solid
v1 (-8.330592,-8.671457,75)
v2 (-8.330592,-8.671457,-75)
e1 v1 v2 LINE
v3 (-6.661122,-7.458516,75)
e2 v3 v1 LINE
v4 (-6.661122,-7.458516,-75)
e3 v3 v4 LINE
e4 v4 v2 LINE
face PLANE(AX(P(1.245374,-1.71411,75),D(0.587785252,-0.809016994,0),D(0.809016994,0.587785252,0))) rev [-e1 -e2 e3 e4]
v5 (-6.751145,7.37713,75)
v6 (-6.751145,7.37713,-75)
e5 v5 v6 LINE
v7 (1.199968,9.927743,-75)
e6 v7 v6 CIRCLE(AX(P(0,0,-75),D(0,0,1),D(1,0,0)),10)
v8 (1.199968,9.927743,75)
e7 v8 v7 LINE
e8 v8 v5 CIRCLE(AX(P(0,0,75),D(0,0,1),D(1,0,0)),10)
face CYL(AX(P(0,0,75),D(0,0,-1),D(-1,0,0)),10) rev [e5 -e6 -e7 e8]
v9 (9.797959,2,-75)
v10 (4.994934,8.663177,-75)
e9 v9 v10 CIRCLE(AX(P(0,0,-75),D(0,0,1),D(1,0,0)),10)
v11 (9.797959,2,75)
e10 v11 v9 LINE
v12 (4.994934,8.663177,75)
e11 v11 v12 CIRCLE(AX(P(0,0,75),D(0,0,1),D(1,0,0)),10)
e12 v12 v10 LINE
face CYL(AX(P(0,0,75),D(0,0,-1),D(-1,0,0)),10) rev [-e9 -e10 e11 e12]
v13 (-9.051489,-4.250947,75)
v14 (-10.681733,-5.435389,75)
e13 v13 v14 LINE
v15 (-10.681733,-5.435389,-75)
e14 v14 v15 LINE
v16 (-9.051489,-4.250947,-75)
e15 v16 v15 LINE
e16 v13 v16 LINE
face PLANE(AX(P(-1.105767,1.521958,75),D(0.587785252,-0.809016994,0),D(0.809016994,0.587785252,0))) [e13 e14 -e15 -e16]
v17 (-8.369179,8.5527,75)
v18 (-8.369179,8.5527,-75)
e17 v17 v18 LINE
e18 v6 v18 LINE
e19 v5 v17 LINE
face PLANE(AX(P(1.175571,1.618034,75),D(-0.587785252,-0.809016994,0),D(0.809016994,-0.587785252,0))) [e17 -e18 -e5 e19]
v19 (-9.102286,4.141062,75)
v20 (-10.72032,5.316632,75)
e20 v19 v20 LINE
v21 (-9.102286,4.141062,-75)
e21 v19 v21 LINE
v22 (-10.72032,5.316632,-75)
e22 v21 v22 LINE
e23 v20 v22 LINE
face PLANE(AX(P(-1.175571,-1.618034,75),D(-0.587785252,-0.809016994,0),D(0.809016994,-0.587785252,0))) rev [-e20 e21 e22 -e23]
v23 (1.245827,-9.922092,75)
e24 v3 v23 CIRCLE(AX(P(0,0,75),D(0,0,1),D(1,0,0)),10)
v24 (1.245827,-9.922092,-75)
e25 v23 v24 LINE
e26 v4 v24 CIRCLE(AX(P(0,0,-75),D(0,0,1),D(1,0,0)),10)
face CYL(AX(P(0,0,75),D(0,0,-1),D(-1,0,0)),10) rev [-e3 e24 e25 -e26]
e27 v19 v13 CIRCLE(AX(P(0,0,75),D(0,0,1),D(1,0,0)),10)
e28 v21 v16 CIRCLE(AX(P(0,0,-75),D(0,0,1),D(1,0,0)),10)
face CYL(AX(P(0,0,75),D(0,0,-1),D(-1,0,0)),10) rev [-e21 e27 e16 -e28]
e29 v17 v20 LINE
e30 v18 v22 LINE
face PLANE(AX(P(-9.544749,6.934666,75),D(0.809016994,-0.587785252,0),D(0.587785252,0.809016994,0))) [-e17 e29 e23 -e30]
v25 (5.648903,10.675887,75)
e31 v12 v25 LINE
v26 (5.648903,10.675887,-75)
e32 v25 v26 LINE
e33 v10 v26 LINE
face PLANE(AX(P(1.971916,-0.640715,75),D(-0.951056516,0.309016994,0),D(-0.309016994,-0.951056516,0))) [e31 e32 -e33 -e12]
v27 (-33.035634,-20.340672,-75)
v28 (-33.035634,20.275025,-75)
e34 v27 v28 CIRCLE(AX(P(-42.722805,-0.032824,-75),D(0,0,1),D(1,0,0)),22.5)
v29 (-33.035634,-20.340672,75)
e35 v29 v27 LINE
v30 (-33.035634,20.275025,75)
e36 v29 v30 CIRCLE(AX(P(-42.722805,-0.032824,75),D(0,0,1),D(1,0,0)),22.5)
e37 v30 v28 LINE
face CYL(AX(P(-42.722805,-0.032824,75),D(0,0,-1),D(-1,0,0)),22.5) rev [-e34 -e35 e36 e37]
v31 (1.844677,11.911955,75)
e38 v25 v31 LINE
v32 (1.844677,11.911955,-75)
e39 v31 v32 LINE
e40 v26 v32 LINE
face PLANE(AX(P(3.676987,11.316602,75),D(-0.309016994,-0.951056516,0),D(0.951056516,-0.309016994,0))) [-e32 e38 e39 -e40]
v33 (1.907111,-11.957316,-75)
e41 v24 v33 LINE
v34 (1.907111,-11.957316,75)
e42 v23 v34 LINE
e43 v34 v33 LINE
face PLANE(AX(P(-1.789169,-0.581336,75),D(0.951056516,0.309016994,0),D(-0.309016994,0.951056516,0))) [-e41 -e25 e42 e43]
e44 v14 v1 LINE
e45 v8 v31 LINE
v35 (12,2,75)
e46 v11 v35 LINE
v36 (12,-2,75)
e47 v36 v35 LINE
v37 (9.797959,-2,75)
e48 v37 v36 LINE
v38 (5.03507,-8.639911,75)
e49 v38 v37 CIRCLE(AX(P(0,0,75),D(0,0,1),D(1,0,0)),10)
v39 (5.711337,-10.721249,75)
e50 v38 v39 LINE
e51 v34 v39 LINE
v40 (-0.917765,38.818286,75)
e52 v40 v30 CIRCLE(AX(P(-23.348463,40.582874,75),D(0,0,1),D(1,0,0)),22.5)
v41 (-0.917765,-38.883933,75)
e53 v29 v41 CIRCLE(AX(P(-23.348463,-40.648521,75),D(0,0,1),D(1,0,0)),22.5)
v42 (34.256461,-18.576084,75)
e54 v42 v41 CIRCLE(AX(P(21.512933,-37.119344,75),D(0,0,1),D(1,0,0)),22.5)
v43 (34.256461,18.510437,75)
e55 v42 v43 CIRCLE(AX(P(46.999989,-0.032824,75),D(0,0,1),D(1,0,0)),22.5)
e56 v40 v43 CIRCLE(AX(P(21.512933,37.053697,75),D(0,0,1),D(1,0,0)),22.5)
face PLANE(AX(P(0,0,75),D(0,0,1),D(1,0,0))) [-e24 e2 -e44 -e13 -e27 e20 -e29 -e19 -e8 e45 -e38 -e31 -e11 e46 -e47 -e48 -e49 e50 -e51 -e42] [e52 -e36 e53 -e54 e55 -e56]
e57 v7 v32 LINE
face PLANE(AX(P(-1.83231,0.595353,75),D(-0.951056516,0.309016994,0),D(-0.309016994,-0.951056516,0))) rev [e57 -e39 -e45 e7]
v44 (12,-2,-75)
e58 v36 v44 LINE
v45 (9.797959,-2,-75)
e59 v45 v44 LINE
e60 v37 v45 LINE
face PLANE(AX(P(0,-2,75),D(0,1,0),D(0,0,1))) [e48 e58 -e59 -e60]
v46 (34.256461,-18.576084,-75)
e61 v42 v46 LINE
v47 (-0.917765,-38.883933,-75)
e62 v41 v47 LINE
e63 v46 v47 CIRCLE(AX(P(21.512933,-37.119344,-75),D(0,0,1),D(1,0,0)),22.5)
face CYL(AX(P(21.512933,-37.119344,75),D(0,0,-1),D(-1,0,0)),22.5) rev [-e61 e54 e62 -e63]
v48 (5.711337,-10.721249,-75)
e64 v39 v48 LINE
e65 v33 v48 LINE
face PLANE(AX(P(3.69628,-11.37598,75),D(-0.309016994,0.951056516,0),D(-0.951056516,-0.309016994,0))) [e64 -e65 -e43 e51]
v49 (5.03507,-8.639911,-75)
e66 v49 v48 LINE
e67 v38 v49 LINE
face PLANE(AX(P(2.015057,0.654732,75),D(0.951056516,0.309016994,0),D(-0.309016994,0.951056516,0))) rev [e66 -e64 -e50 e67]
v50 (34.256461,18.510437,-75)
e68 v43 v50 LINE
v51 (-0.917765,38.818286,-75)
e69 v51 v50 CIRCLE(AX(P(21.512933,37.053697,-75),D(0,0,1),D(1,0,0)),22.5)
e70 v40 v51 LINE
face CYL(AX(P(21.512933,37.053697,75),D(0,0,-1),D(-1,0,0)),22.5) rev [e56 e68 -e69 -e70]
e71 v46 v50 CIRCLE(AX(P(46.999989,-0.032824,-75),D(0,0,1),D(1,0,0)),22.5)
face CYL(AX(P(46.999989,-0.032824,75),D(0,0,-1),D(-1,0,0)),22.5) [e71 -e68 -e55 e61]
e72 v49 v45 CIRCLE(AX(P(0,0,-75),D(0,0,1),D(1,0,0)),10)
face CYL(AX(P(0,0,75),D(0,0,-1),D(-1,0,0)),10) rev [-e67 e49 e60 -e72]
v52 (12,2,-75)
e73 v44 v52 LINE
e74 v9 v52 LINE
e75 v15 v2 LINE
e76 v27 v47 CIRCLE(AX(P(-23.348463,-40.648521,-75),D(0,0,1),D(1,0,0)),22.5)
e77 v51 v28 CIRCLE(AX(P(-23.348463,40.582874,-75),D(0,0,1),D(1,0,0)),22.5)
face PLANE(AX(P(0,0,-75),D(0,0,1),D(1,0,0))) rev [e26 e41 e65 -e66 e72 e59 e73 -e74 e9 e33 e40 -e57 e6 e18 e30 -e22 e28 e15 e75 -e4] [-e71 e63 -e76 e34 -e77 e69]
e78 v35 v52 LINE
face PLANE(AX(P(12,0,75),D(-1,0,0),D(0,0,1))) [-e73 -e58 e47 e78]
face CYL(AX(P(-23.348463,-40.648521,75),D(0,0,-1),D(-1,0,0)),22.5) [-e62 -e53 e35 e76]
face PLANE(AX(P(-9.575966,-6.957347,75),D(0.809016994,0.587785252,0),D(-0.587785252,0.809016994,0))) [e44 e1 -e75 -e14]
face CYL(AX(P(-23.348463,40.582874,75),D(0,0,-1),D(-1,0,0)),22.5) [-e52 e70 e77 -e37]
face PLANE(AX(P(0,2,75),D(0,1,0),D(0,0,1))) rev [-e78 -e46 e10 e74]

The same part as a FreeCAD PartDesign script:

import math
import FreeCAD as App
import Part
import Sketcher
from FreeCAD import Vector
Q = App.Units.Quantity

doc = App.newDocument("Part")
body = doc.addObject("PartDesign::Body", "Body")

# Sketch on XY plane
sketch1 = doc.addObject("Sketcher::SketchObject", "Sketch")
body.addObject(sketch1)
sketch1.AttachmentSupport = (doc.XY_Plane, [""])
sketch1.MapMode = "FlatFace"
sketch1.addGeometry([
    Part.ArcOfCircle(Part.Circle(Vector(21.5, -37.1, 0), Vector(0, 0, 1), 22.5), math.radians(56), math.radians(184)),  # 0
    Part.ArcOfCircle(Part.Circle(Vector(47, 0, 0), Vector(0, 0, 1), 22.5), math.radians(-124), math.radians(124)),  # 1
    Part.ArcOfCircle(Part.Circle(Vector(21.5, 37.1, 0), Vector(0, 0, 1), 22.5), math.radians(176), math.radians(304)),  # 2
    Part.ArcOfCircle(Part.Circle(Vector(-23.3, 40.6, 0), Vector(0, 0, 1), 22.5), math.radians(-4), math.radians(244)),  # 3
    Part.ArcOfCircle(Part.Circle(Vector(-42.7, 0, 0), Vector(0, 0, 1), 22.5), math.radians(-64), math.radians(64)),  # 4
    Part.ArcOfCircle(Part.Circle(Vector(-23.3, -40.6, 0), Vector(0, 0, 1), 22.5), math.radians(116), math.radians(364)),  # 5
    Part.LineSegment(Vector(5.7, -10.7, 0), Vector(1.9, -12, 0)),  # 6
    Part.LineSegment(Vector(1.9, -12, 0), Vector(1.2, -9.9, 0)),  # 7
    Part.ArcOfCircle(Part.Circle(Vector(0, 0, 0), Vector(0, 0, 1), 10), math.radians(-132), math.radians(-83)),  # 8
    Part.LineSegment(Vector(-6.7, -7.5, 0), Vector(-8.3, -8.7, 0)),  # 9
    Part.LineSegment(Vector(-8.3, -8.7, 0), Vector(-10.7, -5.4, 0)),  # 10
    Part.LineSegment(Vector(-10.7, -5.4, 0), Vector(-9.1, -4.3, 0)),  # 11
    Part.ArcOfCircle(Part.Circle(Vector(0, 0, 0), Vector(0, 0, 1), 10), math.radians(156), math.radians(205)),  # 12
    Part.LineSegment(Vector(-9.1, 4.1, 0), Vector(-10.7, 5.3, 0)),  # 13
    Part.LineSegment(Vector(-10.7, 5.3, 0), Vector(-8.4, 8.6, 0)),  # 14
    Part.LineSegment(Vector(-8.4, 8.6, 0), Vector(-6.8, 7.4, 0)),  # 15
    Part.ArcOfCircle(Part.Circle(Vector(0, 0, 0), Vector(0, 0, 1), 10), math.radians(83), math.radians(132)),  # 16
    Part.LineSegment(Vector(1.2, 9.9, 0), Vector(1.8, 11.9, 0)),  # 17
    Part.LineSegment(Vector(1.8, 11.9, 0), Vector(5.6, 10.7, 0)),  # 18
    Part.LineSegment(Vector(5.6, 10.7, 0), Vector(5, 8.7, 0)),  # 19
    Part.ArcOfCircle(Part.Circle(Vector(0, 0, 0), Vector(0, 0, 1), 10), math.radians(12), math.radians(60)),  # 20
    Part.LineSegment(Vector(9.8, 2, 0), Vector(12, 2, 0)),  # 21
    Part.LineSegment(Vector(12, 2, 0), Vector(12, -2, 0)),  # 22
    Part.LineSegment(Vector(12, -2, 0), Vector(9.8, -2, 0)),  # 23
    Part.ArcOfCircle(Part.Circle(Vector(0, 0, 0), Vector(0, 0, 1), 10), math.radians(-60), math.radians(-12)),  # 24
    Part.LineSegment(Vector(5, -8.6, 0), Vector(5.7, -10.7, 0)),  # 25
], False)
sketch1.addConstraint([
    Sketcher.Constraint("Tangent", 0, 1, 1, 1),
    Sketcher.Constraint("Tangent", 1, 2, 2, 2),
    Sketcher.Constraint("Tangent", 2, 1, 3, 1),
    Sketcher.Constraint("Tangent", 3, 2, 4, 2),
    Sketcher.Constraint("Tangent", 4, 1, 5, 1),
    Sketcher.Constraint("Tangent", 5, 2, 0, 2),
    Sketcher.Constraint("Coincident", 6, 2, 7, 1),
    Sketcher.Constraint("Coincident", 7, 2, 8, 2),
    Sketcher.Constraint("Coincident", 8, 1, 9, 1),
    Sketcher.Constraint("Coincident", 9, 2, 10, 1),
    Sketcher.Constraint("Coincident", 10, 2, 11, 1),
    Sketcher.Constraint("Coincident", 11, 2, 12, 2),
    Sketcher.Constraint("Coincident", 12, 1, 13, 1),
    Sketcher.Constraint("Coincident", 13, 2, 14, 1),
    Sketcher.Constraint("Coincident", 14, 2, 15, 1),
    Sketcher.Constraint("Coincident", 15, 2, 16, 2),
    Sketcher.Constraint("Coincident", 16, 1, 17, 1),
    Sketcher.Constraint("Coincident", 17, 2, 18, 1),
    Sketcher.Constraint("Coincident", 18, 2, 19, 1),
    Sketcher.Constraint("Coincident", 19, 2, 20, 2),
    Sketcher.Constraint("Coincident", 20, 1, 21, 1),
    Sketcher.Constraint("Coincident", 21, 2, 22, 1),
    Sketcher.Constraint("Coincident", 22, 2, 23, 1),
    Sketcher.Constraint("Coincident", 23, 2, 24, 2),
    Sketcher.Constraint("Coincident", 24, 1, 25, 1),
    Sketcher.Constraint("Coincident", 25, 2, 6, 1),
    Sketcher.Constraint("Horizontal", 21),
    Sketcher.Constraint("Vertical", 22),
    Sketcher.Constraint("Horizontal", 23),
    Sketcher.Constraint("Coincident", 8, 3, -1, 1),
    Sketcher.Constraint("Coincident", 12, 3, -1, 1),
    Sketcher.Constraint("Coincident", 16, 3, -1, 1),
    Sketcher.Constraint("Coincident", 20, 3, -1, 1),
    Sketcher.Constraint("Coincident", 24, 3, -1, 1),
    Sketcher.Constraint("Equal", 0, 1),
    Sketcher.Constraint("Equal", 1, 2),
    Sketcher.Constraint("Equal", 2, 3),
    Sketcher.Constraint("Equal", 3, 4),
    Sketcher.Constraint("Equal", 4, 5),
    Sketcher.Constraint("Equal", 8, 12),
    Sketcher.Constraint("Equal", 12, 16),
    Sketcher.Constraint("Equal", 16, 20),
    Sketcher.Constraint("Equal", 20, 24),
    Sketcher.Constraint("Perpendicular", 6, 7),
    Sketcher.Constraint("Perpendicular", 9, 10),
    Sketcher.Constraint("Perpendicular", 10, 11),
    Sketcher.Constraint("Perpendicular", 13, 14),
    Sketcher.Constraint("Perpendicular", 14, 15),
    Sketcher.Constraint("Perpendicular", 17, 18),
    Sketcher.Constraint("Perpendicular", 18, 19),
    Sketcher.Constraint("Parallel", 7, 25),
    Sketcher.Constraint("Horizontal", 1, 3, 4, 3),
    Sketcher.Constraint("Vertical", 0, 3, 2, 3),
    Sketcher.Constraint("Vertical", 20, 1, 23, 2),
    Sketcher.Constraint("Equal", 6, 10),
    Sketcher.Constraint("Equal", 10, 14),
    Sketcher.Constraint("Equal", 13, 15),
    Sketcher.Constraint("Equal", 14, 18),
    Sketcher.Constraint("Radius", 8, 10.0),
    Sketcher.Constraint("Radius", 0, 22.5),
    Sketcher.Constraint("DistanceY", 22, 2, 22, 1, 4.0),
    Sketcher.Constraint("Angle", 6, Q("-162 deg")),
    Sketcher.Constraint("Angle", 9, Q("-144 deg")),
    Sketcher.Constraint("Angle", 13, Q("144 deg")),
    Sketcher.Constraint("Angle", 17, Q("72 deg")),
    Sketcher.Constraint("Distance", 6, 4.0),
    Sketcher.Constraint("Distance", 13, 2.0),
    Sketcher.Constraint("DistanceX", -1, 1, 21, 2, 12.0),
    Sketcher.Constraint("DistanceX", 2, 1, 2, 3, 22.430698),
    Sketcher.Constraint("DistanceY", 6, 2, 8, 1, 4.498801),
    Sketcher.Constraint("Distance", 7, 2.139961),
    Sketcher.Constraint("Distance", 9, 2.063579),
    Sketcher.Constraint("Distance", 19, 2.116289),
    Sketcher.Constraint("DistanceX", -1, 1, 1, 3, 46.999989),
    Sketcher.Constraint("DistanceY", 5, 3, -1, 1, 40.648521),
    Sketcher.Constraint("DistanceX", -1, 1, 0, 1, 34.256461),
    Sketcher.Constraint("DistanceX", -1, 1, 6, 2, 1.907111),
    Sketcher.Constraint("DistanceX", 16, 1, 17, 2, 0.64471),
])
pad1 = doc.addObject("PartDesign::Pad", "Pad")
body.addObject(pad1)
pad1.Profile = sketch1
pad1.Length = 150
pad1.Midplane = True

doc.recompute()
